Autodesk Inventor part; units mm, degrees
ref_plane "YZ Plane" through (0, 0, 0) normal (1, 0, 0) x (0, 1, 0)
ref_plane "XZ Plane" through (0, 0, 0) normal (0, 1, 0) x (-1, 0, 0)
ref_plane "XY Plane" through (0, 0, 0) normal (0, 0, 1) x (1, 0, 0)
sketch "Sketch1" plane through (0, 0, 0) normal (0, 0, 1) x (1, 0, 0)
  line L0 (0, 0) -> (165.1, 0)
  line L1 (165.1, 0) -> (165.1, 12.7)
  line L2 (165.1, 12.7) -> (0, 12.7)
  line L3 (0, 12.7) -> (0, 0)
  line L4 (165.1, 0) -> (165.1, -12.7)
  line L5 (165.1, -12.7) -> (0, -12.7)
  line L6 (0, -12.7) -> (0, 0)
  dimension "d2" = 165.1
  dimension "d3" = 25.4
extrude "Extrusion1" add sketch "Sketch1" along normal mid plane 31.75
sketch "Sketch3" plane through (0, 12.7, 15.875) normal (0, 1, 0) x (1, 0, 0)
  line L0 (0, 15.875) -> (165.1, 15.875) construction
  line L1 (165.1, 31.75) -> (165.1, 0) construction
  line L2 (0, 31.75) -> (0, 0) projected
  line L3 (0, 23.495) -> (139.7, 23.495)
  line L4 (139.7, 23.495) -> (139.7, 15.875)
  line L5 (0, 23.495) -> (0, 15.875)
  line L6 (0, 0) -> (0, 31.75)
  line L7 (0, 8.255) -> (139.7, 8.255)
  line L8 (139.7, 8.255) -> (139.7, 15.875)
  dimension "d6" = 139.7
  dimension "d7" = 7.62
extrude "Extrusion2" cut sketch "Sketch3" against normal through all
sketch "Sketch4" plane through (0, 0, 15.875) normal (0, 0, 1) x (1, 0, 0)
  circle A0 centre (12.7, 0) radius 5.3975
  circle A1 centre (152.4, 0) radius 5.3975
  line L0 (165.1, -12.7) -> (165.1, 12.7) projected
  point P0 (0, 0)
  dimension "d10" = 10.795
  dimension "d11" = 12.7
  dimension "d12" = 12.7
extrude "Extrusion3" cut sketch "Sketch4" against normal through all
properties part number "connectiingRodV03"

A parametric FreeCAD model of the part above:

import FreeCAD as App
import Part
import Sketcher
from FreeCAD import Vector
Q = App.Units.Quantity

doc = App.newDocument("Part")
body = doc.addObject("PartDesign::Body", "Body")

sketch1 = body.newObject("Sketcher::SketchObject", "Sketch")
sketch1.AttachmentSupport = (doc.getObject("XY_Plane"), [""])
sketch1.MapMode = "FlatFace"
sketch1.addGeometry(Part.LineSegment(Vector(0, 12.7, 0), Vector(0, -12.7, 0)), False)
sketch1.addGeometry(Part.LineSegment(Vector(0, -12.7, 0), Vector(165.1, -12.7, 0)), False)
sketch1.addGeometry(Part.LineSegment(Vector(165.1, -12.7, 0), Vector(165.1, 12.7, 0)), False)
sketch1.addGeometry(Part.LineSegment(Vector(165.1, 12.7, 0), Vector(0, 12.7, 0)), False)
sketch1.addConstraint(Sketcher.Constraint("Coincident", 0, 2, 1, 1))
sketch1.addConstraint(Sketcher.Constraint("Coincident", 1, 2, 2, 1))
sketch1.addConstraint(Sketcher.Constraint("Coincident", 2, 2, 3, 1))
sketch1.addConstraint(Sketcher.Constraint("Coincident", 3, 2, 0, 1))
sketch1.addConstraint(Sketcher.Constraint("Vertical", 0))
sketch1.addConstraint(Sketcher.Constraint("Horizontal", 1))
sketch1.addConstraint(Sketcher.Constraint("Vertical", 2))
sketch1.addConstraint(Sketcher.Constraint("Horizontal", 3))
sketch1.addConstraint(Sketcher.Constraint("Symmetric", 0, 2, 3, 2, -1, 1))
sketch1.addConstraint(Sketcher.Constraint("DistanceY", 0, 2, 0, 1, Q("1 in")))
sketch1.addConstraint(Sketcher.Constraint("DistanceX", 1, 1, 1, 2, Q("6.5 in")))
pad1 = body.newObject("PartDesign::Pad", "Pad")
pad1.Profile = sketch1
pad1.Length = Q("1.25 in")
pad1.Midplane = True

sketch2 = body.newObject("Sketcher::SketchObject", "Sketch001")
sketch2.AttachmentSupport = (doc.getObject("XZ_Plane"), [""])
sketch2.MapMode = "FlatFace"
sketch2.AttachmentOffset = App.Placement(Vector(0, 0, -0.5 * 25.4), App.Rotation())
sketch2.addGeometry(Part.LineSegment(Vector(139.7, -7.62, 0), Vector(0, -7.62, 0)), False)
sketch2.addGeometry(Part.LineSegment(Vector(0, -7.62, 0), Vector(0, 7.62, 0)), False)
sketch2.addGeometry(Part.LineSegment(Vector(0, 7.62, 0), Vector(139.7, 7.62, 0)), False)
sketch2.addGeometry(Part.LineSegment(Vector(139.7, 7.62, 0), Vector(139.7, -7.62, 0)), False)
sketch2.addConstraint(Sketcher.Constraint("Coincident", 0, 2, 1, 1))
sketch2.addConstraint(Sketcher.Constraint("Coincident", 1, 2, 2, 1))
sketch2.addConstraint(Sketcher.Constraint("Coincident", 2, 2, 3, 1))
sketch2.addConstraint(Sketcher.Constraint("Coincident", 3, 2, 0, 1))
sketch2.addConstraint(Sketcher.Constraint("Horizontal", 0))
sketch2.addConstraint(Sketcher.Constraint("Vertical", 1))
sketch2.addConstraint(Sketcher.Constraint("Horizontal", 2))
sketch2.addConstraint(Sketcher.Constraint("Vertical", 3))
sketch2.addConstraint(Sketcher.Constraint("Symmetric", 0, 2, 1, 2, -1, 1))
sketch2.addConstraint(Sketcher.Constraint("DistanceX", 0, 2, 0, 1, Q("5.5 in")))
sketch2.addConstraint(Sketcher.Constraint("DistanceY", 0, 2, -1, 1, Q("0.3 in")))
pocket1 = body.newObject("PartDesign::Pocket", "Pocket")
pocket1.Profile = sketch2
pocket1.Type = "ThroughAll"
pocket1.Reversed = True

sketch3 = body.newObject("Sketcher::SketchObject", "Sketch002")
sketch3.AttachmentSupport = (doc.getObject("XY_Plane"), [""])
sketch3.MapMode = "FlatFace"
sketch3.AttachmentOffset = App.Placement(Vector(0, 0, 0.625 * 25.4), App.Rotation())
sketch3.addGeometry(Part.Circle(Vector(12.7, 0, 0), Vector(0, 0, 1), 5.3975), False)
sketch3.addGeometry(Part.Circle(Vector(152.4, 0, 0), Vector(0, 0, 1), 5.3975), False)
sketch3.addConstraint(Sketcher.Constraint("Equal", 0, 1))
sketch3.addConstraint(Sketcher.Constraint("PointOnObject", 0, 3, -1))
sketch3.addConstraint(Sketcher.Constraint("PointOnObject", 1, 3, -1))
sketch3.addConstraint(Sketcher.Constraint("Diameter", 0, Q("0.425 in")))
sketch3.addConstraint(Sketcher.Constraint("DistanceX", -1, 1, 0, 3, Q("0.5 in")))
sketch3.addConstraint(Sketcher.Constraint("DistanceX", -1, 1, 1, 3, Q("6 in")))
pocket2 = body.newObject("PartDesign::Pocket", "Pocket001")
pocket2.Profile = sketch3
pocket2.Type = "ThroughAll"

doc.recompute()
